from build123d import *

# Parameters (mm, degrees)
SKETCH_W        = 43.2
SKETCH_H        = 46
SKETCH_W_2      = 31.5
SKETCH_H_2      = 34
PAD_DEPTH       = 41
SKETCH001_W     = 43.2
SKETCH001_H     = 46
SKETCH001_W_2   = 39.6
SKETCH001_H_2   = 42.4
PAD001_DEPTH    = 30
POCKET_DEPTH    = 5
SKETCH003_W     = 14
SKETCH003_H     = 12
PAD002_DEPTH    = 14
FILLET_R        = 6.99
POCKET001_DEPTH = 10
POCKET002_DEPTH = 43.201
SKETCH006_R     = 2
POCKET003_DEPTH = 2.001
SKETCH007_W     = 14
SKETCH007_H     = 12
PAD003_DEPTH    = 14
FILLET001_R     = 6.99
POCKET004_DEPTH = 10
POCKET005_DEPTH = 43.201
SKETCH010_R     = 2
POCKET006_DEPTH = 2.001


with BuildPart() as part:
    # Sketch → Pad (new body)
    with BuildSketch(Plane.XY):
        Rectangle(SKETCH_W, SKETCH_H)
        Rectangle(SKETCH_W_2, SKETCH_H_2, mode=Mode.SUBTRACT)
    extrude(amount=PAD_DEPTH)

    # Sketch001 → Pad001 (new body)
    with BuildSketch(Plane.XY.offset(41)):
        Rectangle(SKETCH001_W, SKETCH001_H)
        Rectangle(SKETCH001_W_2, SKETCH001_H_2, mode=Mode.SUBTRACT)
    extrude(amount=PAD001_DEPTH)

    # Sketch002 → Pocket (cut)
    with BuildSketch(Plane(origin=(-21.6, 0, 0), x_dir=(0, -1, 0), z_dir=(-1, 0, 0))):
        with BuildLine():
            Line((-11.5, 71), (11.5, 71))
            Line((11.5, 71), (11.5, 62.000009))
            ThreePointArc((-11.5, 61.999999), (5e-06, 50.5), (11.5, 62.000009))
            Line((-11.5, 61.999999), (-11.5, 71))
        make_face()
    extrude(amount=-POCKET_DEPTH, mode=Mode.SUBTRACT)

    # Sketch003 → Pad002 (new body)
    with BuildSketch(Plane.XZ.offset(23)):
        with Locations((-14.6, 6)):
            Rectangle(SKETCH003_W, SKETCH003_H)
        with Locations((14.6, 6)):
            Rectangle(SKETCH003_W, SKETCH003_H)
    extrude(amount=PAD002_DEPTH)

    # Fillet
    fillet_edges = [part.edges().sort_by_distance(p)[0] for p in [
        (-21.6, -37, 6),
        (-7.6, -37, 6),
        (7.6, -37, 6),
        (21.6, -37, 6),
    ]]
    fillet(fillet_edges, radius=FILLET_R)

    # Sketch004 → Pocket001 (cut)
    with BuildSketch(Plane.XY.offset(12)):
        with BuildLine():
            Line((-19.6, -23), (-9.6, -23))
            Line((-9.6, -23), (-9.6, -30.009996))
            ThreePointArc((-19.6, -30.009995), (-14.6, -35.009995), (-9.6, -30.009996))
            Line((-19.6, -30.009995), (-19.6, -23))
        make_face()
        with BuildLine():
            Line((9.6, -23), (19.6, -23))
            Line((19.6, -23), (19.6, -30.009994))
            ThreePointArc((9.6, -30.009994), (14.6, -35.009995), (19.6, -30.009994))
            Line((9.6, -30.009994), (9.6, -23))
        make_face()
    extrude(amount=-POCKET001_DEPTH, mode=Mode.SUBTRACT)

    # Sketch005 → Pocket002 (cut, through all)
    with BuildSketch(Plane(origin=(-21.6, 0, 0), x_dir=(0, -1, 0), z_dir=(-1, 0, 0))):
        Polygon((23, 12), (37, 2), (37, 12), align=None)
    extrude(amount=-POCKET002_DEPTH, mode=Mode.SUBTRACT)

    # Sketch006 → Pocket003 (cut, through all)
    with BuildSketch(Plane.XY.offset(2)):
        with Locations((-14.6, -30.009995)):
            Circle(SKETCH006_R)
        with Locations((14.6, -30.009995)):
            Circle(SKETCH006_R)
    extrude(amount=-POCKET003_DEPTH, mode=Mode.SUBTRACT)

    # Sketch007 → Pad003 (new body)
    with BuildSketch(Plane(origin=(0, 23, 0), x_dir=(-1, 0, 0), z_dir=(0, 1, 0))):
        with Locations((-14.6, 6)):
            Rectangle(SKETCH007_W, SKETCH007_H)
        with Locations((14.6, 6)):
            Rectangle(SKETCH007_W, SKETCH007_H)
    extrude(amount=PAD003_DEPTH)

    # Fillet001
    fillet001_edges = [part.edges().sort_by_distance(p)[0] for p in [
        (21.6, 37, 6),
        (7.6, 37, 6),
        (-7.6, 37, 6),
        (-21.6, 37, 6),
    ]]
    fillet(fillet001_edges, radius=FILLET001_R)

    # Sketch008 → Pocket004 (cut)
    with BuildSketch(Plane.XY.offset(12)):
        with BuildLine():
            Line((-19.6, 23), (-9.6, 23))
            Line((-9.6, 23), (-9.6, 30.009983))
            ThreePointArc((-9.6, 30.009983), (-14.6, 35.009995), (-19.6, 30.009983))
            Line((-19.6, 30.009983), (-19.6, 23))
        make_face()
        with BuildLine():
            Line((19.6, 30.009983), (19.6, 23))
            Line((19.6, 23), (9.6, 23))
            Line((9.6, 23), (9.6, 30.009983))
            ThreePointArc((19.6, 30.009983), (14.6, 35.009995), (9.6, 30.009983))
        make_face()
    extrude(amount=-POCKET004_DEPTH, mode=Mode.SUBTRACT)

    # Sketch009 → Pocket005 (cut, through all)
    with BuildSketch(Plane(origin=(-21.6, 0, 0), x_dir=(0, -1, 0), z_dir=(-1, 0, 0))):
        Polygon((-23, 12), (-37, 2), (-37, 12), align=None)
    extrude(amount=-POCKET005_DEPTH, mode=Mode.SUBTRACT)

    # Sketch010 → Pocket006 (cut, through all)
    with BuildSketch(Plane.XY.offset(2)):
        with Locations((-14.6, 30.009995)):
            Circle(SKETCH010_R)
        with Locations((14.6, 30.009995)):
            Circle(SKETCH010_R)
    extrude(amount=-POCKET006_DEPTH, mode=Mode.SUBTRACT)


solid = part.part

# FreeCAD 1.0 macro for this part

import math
import FreeCAD as App
import Part
import Sketcher
Q = App.Units.Quantity


def edges_at(feature, points):
    """Names of the edges that pass closest to the given points."""
    edges = feature.Shape.Edges
    near = lambda p: min(range(len(edges)), key=lambda i: edges[i].distToShape(Part.Vertex(*p))[0])
    return sorted({f"Edge{near(p) + 1}" for p in points})


def add_polygon(sketch, points):
    """Adds a closed chain of lines whose ends are joined by coincident constraints."""
    first, n = sketch.GeometryCount, len(points)
    for a, b in zip(points, points[1:] + points[:1]):
        sketch.addGeometry(Part.LineSegment(App.Vector(*a, 0), App.Vector(*b, 0)), False)
    for i in range(n):
        sketch.addConstraint(Sketcher.Constraint("Coincident", first + i, 2, first + (i + 1) % n, 1))

doc = App.newDocument("Part")
body = doc.addObject("PartDesign::Body", "Body")

# Sketch on XY plane
sketch1 = body.newObject("Sketcher::SketchObject", "Sketch")
sketch1.AttachmentSupport = (doc.getObject("XY_Plane"), [""])
sketch1.MapMode = "FlatFace"
add_polygon(sketch1, [(-22, 23), (-22, -23), (22, -23), (22, 23)])  # lines 0-3
add_polygon(sketch1, [(16, -17), (-16, -17), (-16, 17), (16, 17)])  # lines 4-7
sketch1.addConstraint([
    Sketcher.Constraint("Vertical", 0),
    Sketcher.Constraint("Horizontal", 1),
    Sketcher.Constraint("Vertical", 2),
    Sketcher.Constraint("Horizontal", 3),
    Sketcher.Constraint("Horizontal", 4),
    Sketcher.Constraint("Vertical", 5),
    Sketcher.Constraint("Horizontal", 6),
    Sketcher.Constraint("Vertical", 7),
    Sketcher.Constraint("Symmetric", 0, 2, 2, 2, -1, 1),
    Sketcher.Constraint("Symmetric", 4, 2, 6, 2, -1, 1),
    Sketcher.Constraint("DistanceY", 0, 2, 0, 1, Q("46 mm")),
    Sketcher.Constraint("DistanceY", 5, 1, 5, 2, Q("34 mm")),
    Sketcher.Constraint("DistanceX", 1, 1, 1, 2, Q("43.2 mm")),
    Sketcher.Constraint("DistanceX", 4, 2, 4, 1, Q("31.5 mm")),
])
pad1 = body.newObject("PartDesign::Pad", "Pad")
pad1.Profile = sketch1
pad1.Length = 41

# Sketch on XY plane
sketch2 = body.newObject("Sketcher::SketchObject", "Sketch001")
sketch2.AttachmentSupport = (doc.getObject("XY_Plane"), [""])
sketch2.MapMode = "FlatFace"
sketch2.AttachmentOffset = App.Placement(App.Vector(0, 0, 41), App.Rotation())
add_polygon(sketch2, [(-22, 23), (-22, -23), (22, -23), (22, 23)])  # lines 0-3
add_polygon(sketch2, [(20, -21), (-20, -21), (-20, 21), (20, 21)])  # lines 4-7
sketch2.addConstraint([
    Sketcher.Constraint("Vertical", 0),
    Sketcher.Constraint("Horizontal", 1),
    Sketcher.Constraint("Vertical", 2),
    Sketcher.Constraint("Horizontal", 3),
    Sketcher.Constraint("Horizontal", 4),
    Sketcher.Constraint("Vertical", 5),
    Sketcher.Constraint("Horizontal", 6),
    Sketcher.Constraint("Vertical", 7),
    Sketcher.Constraint("Symmetric", 0, 2, 2, 2, -1, 1),
    Sketcher.Constraint("Symmetric", 4, 2, 6, 2, -1, 1),
    Sketcher.Constraint("DistanceY", 0, 2, 0, 1, Q("46 mm")),
    Sketcher.Constraint("DistanceX", 1, 1, 1, 2, Q("43.2 mm")),
    Sketcher.Constraint("DistanceX", 4, 2, 4, 1, Q("39.6 mm")),
    Sketcher.Constraint("DistanceY", 5, 1, 5, 2, Q("42.4 mm")),
])
pad2 = body.newObject("PartDesign::Pad", "Pad001")
pad2.Profile = sketch2
pad2.Length = 30

# Sketch on YZ plane
sketch3 = body.newObject("Sketcher::SketchObject", "Sketch002")
sketch3.AttachmentSupport = (doc.getObject("YZ_Plane"), [""])
sketch3.MapMode = "FlatFace"
sketch3.AttachmentOffset = App.Placement(App.Vector(0, 0, -21.6), App.Rotation())
sketch3.addGeometry([
    Part.LineSegment(App.Vector(-12, 71, 0), App.Vector(12, 71, 0)),
    Part.LineSegment(App.Vector(12, 71, 0), App.Vector(12, 62, 0)),
    Part.ArcOfCircle(Part.Circle(App.Vector(0, 62, 0), App.Vector(0, 0, 1), 12), math.radians(180), math.radians(360)),
    Part.LineSegment(App.Vector(-12, 62, 0), App.Vector(-12, 71, 0)),
], False)
sketch3.addConstraint([
    Sketcher.Constraint("Coincident", 0, 2, 1, 1),
    Sketcher.Constraint("Tangent", 1, 2, 2, 2),
    Sketcher.Constraint("Tangent", 2, 1, 3, 1),
    Sketcher.Constraint("Coincident", 3, 2, 0, 1),
    Sketcher.Constraint("Horizontal", 0),
    Sketcher.Constraint("Vertical", 1),
    Sketcher.Constraint("Vertical", 3),
    Sketcher.Constraint("PointOnObject", 2, 3, -2),
    Sketcher.Constraint("Radius", 2, Q("11.5 mm")),
    Sketcher.Constraint("DistanceY", 1, 2, 1, 1, Q("9.000001 mm")),
    Sketcher.Constraint("DistanceY", -1, 1, 2, 3, Q("62 mm")),
])
pocket1 = body.newObject("PartDesign::Pocket", "Pocket")
pocket1.Profile = sketch3
pocket1.Length = 5
pocket1.Reversed = True

# Sketch on XZ plane
sketch4 = body.newObject("Sketcher::SketchObject", "Sketch003")
sketch4.AttachmentSupport = (doc.getObject("XZ_Plane"), [""])
sketch4.MapMode = "FlatFace"
sketch4.AttachmentOffset = App.Placement(App.Vector(0, 0, 23), App.Rotation())
add_polygon(sketch4, [(-22, 12), (-22, 0), (-8, 0), (-8, 12)])  # lines 0-3
add_polygon(sketch4, [(8, 12), (8, 0), (22, 0), (22, 12)])  # lines 4-7
sketch4.addConstraint([
    Sketcher.Constraint("Vertical", 0),
    Sketcher.Constraint("Horizontal", 1),
    Sketcher.Constraint("Vertical", 2),
    Sketcher.Constraint("Horizontal", 3),
    Sketcher.Constraint("Vertical", 4),
    Sketcher.Constraint("Horizontal", 5),
    Sketcher.Constraint("Vertical", 6),
    Sketcher.Constraint("Horizontal", 7),
    Sketcher.Constraint("Symmetric", 1, 2, 4, 2, -1, 1),
    Sketcher.Constraint("Symmetric", 0, 2, 5, 2, -2),
    Sketcher.Constraint("Horizontal", 3, 2, 6, 2),
    Sketcher.Constraint("DistanceX", 1, 1, 1, 2, Q("14 mm")),
    Sketcher.Constraint("DistanceY", 0, 2, 0, 1, Q("12 mm")),
    Sketcher.Constraint("DistanceX", 0, 2, -1, 1, Q("21.6 mm")),
])
pad3 = body.newObject("PartDesign::Pad", "Pad002")
pad3.Profile = sketch4
pad3.Length = 14
doc.recompute()

fillet = body.newObject("PartDesign::Fillet", "Fillet")
fillet.Base = (pad3, edges_at(pad3, [
    (-21.6, -37, 6),
    (-7.6, -37, 6),
    (7.6, -37, 6),
    (21.6, -37, 6),
]))
fillet.Radius = 6.99

# Sketch on XY plane
sketch5 = body.newObject("Sketcher::SketchObject", "Sketch004")
sketch5.AttachmentSupport = (doc.getObject("XY_Plane"), [""])
sketch5.MapMode = "FlatFace"
sketch5.AttachmentOffset = App.Placement(App.Vector(0, 0, 12), App.Rotation())
sketch5.addGeometry([
    Part.LineSegment(App.Vector(-10, -23, 0), App.Vector(-20, -23, 0)),  # 0
    Part.LineSegment(App.Vector(-20, -23, 0), App.Vector(-20, -30, 0)),  # 1
    Part.ArcOfCircle(Part.Circle(App.Vector(-15, -30, 0), App.Vector(0, 0, 1), 5), math.radians(180), math.radians(360)),  # 2
    Part.LineSegment(App.Vector(-10, -30, 0), App.Vector(-10, -23, 0)),  # 3
    Part.LineSegment(App.Vector(20, -23, 0), App.Vector(10, -23, 0)),  # 4
    Part.LineSegment(App.Vector(10, -23, 0), App.Vector(10, -30, 0)),  # 5
    Part.ArcOfCircle(Part.Circle(App.Vector(15, -30, 0), App.Vector(0, 0, 1), 5), math.radians(180), math.radians(360)),  # 6
    Part.LineSegment(App.Vector(20, -30, 0), App.Vector(20, -23, 0)),  # 7
], False)
sketch5.addConstraint([
    Sketcher.Constraint("Coincident", 0, 2, 1, 1),
    Sketcher.Constraint("Tangent", 1, 2, 2, 1),
    Sketcher.Constraint("Tangent", 2, 2, 3, 1),
    Sketcher.Constraint("Coincident", 3, 2, 0, 1),
    Sketcher.Constraint("Coincident", 4, 2, 5, 1),
    Sketcher.Constraint("Tangent", 5, 2, 6, 1),
    Sketcher.Constraint("Tangent", 6, 2, 7, 1),
    Sketcher.Constraint("Coincident", 7, 2, 4, 1),
    Sketcher.Constraint("Horizontal", 0),
    Sketcher.Constraint("Vertical", 1),
    Sketcher.Constraint("Vertical", 3),
    Sketcher.Constraint("Horizontal", 4),
    Sketcher.Constraint("Vertical", 5),
    Sketcher.Constraint("Vertical", 7),
    Sketcher.Constraint("Equal", 2, 6),
    Sketcher.Constraint("Symmetric", 2, 3, 6, 3, -2),
    Sketcher.Constraint("Horizontal", 3, 2, 4, 2),
    Sketcher.Constraint("Radius", 2, Q("5 mm")),
    Sketcher.Constraint("DistanceY", 0, 2, -1, 1, Q("23 mm")),
    Sketcher.Constraint("DistanceX", 2, 3, -1, 1, Q("14.6 mm")),
    Sketcher.Constraint("DistanceY", 1, 2, 1, 1, Q("7.009995 mm")),
])
pocket2 = body.newObject("PartDesign::Pocket", "Pocket001")
pocket2.Profile = sketch5
pocket2.Length = 10

# Sketch on YZ plane
sketch6 = body.newObject("Sketcher::SketchObject", "Sketch005")
sketch6.AttachmentSupport = (doc.getObject("YZ_Plane"), [""])
sketch6.MapMode = "FlatFace"
sketch6.AttachmentOffset = App.Placement(App.Vector(0, 0, -21.6), App.Rotation())
add_polygon(sketch6, [(-23, 12), (-37, 2), (-37, 12)])  # lines 0-2
sketch6.addConstraint([
    Sketcher.Constraint("Vertical", 1),
    Sketcher.Constraint("Horizontal", 2),
    Sketcher.Constraint("DistanceX", 2, 1, 2, 2, Q("14 mm")),
    Sketcher.Constraint("DistanceY", 1, 1, 1, 2, Q("10 mm")),
    Sketcher.Constraint("DistanceX", 0, 2, -1, 1, Q("37 mm")),
    Sketcher.Constraint("DistanceY", -1, 1, 0, 2, Q("2 mm")),
])
pocket3 = body.newObject("PartDesign::Pocket", "Pocket002")
pocket3.Profile = sketch6
pocket3.Type = "ThroughAll"
pocket3.Reversed = True

# Sketch on XY plane
sketch7 = body.newObject("Sketcher::SketchObject", "Sketch006")
sketch7.AttachmentSupport = (doc.getObject("XY_Plane"), [""])
sketch7.MapMode = "FlatFace"
sketch7.AttachmentOffset = App.Placement(App.Vector(0, 0, 2), App.Rotation())
sketch7.addGeometry([
    Part.Circle(App.Vector(-14.6, -30, 0), App.Vector(0, 0, 1), 2),
    Part.Circle(App.Vector(14.6, -30, 0), App.Vector(0, 0, 1), 2),
], False)
sketch7.addConstraint([
    Sketcher.Constraint("Equal", 0, 1),
    Sketcher.Constraint("Symmetric", 0, 3, 1, 3, -2),
    Sketcher.Constraint("Diameter", 0, Q("4 mm")),
    Sketcher.Constraint("DistanceX", 0, 3, -1, 1, Q("14.6 mm")),
    Sketcher.Constraint("DistanceY", 0, 3, -1, 1, Q("30.009995 mm")),
])
pocket4 = body.newObject("PartDesign::Pocket", "Pocket003")
pocket4.Profile = sketch7
pocket4.Type = "ThroughAll"

# Sketch on XZ plane
sketch8 = body.newObject("Sketcher::SketchObject", "Sketch007")
sketch8.AttachmentSupport = (doc.getObject("XZ_Plane"), [""])
sketch8.MapMode = "FlatFace"
sketch8.AttachmentOffset = App.Placement(App.Vector(0, 0, -23), App.Rotation())
add_polygon(sketch8, [(22, 12), (22, 0), (8, 0), (8, 12)])  # lines 0-3
add_polygon(sketch8, [(-8, 12), (-8, 0), (-22, 0), (-22, 12)])  # lines 4-7
sketch8.addConstraint([
    Sketcher.Constraint("Vertical", 0),
    Sketcher.Constraint("Horizontal", 1),
    Sketcher.Constraint("Vertical", 2),
    Sketcher.Constraint("Horizontal", 3),
    Sketcher.Constraint("Vertical", 4),
    Sketcher.Constraint("Horizontal", 5),
    Sketcher.Constraint("Vertical", 6),
    Sketcher.Constraint("Horizontal", 7),
    Sketcher.Constraint("Symmetric", 1, 2, 4, 2, -1, 1),
    Sketcher.Constraint("Symmetric", 0, 2, 5, 2, -2),
    Sketcher.Constraint("Horizontal", 3, 2, 6, 2),
    Sketcher.Constraint("DistanceX", 1, 2, 1, 1, Q("14 mm")),
    Sketcher.Constraint("DistanceY", 0, 2, 0, 1, Q("12 mm")),
    Sketcher.Constraint("DistanceX", -1, 1, 0, 2, Q("21.6 mm")),
])
pad4 = body.newObject("PartDesign::Pad", "Pad003")
pad4.Profile = sketch8
pad4.Length = 14
pad4.Reversed = True
doc.recompute()

fillet2 = body.newObject("PartDesign::Fillet", "Fillet001")
fillet2.Base = (pad4, edges_at(pad4, [
    (21.6, 37, 6),
    (7.6, 37, 6),
    (-7.6, 37, 6),
    (-21.6, 37, 6),
]))
fillet2.Radius = 6.99

# Sketch on XY plane
sketch9 = body.newObject("Sketcher::SketchObject", "Sketch008")
sketch9.AttachmentSupport = (doc.getObject("XY_Plane"), [""])
sketch9.MapMode = "FlatFace"
sketch9.AttachmentOffset = App.Placement(App.Vector(0, 0, 12), App.Rotation())
sketch9.addGeometry([
    Part.LineSegment(App.Vector(-20, 23, 0), App.Vector(-10, 23, 0)),  # 0
    Part.LineSegment(App.Vector(-10, 23, 0), App.Vector(-10, 30, 0)),  # 1
    Part.ArcOfCircle(Part.Circle(App.Vector(-15, 30, 0), App.Vector(0, 0, 1), 5), math.radians(0), math.radians(180)),  # 2
    Part.LineSegment(App.Vector(-20, 30, 0), App.Vector(-20, 23, 0)),  # 3
    Part.LineSegment(App.Vector(20, 23, 0), App.Vector(20, 30, 0)),  # 4
    Part.ArcOfCircle(Part.Circle(App.Vector(15, 30, 0), App.Vector(0, 0, 1), 5), math.radians(0), math.radians(180)),  # 5
    Part.LineSegment(App.Vector(10, 30, 0), App.Vector(10, 23, 0)),  # 6
    Part.LineSegment(App.Vector(10, 23, 0), App.Vector(20, 23, 0)),  # 7
], False)
sketch9.addConstraint([
    Sketcher.Constraint("Coincident", 0, 2, 1, 1),
    Sketcher.Constraint("Coincident", 1, 2, 2, 1),
    Sketcher.Constraint("Coincident", 2, 2, 3, 1),
    Sketcher.Constraint("Coincident", 3, 2, 0, 1),
    Sketcher.Constraint("Coincident", 4, 2, 5, 1),
    Sketcher.Constraint("Coincident", 5, 2, 6, 1),
    Sketcher.Constraint("Coincident", 6, 2, 7, 1),
    Sketcher.Constraint("Coincident", 7, 2, 4, 1),
    Sketcher.Constraint("Horizontal", 0),
    Sketcher.Constraint("Vertical", 1),
    Sketcher.Constraint("Vertical", 3),
    Sketcher.Constraint("Vertical", 4),
    Sketcher.Constraint("Vertical", 6),
    Sketcher.Constraint("Horizontal", 7),
    Sketcher.Constraint("Equal", 2, 5),
    Sketcher.Constraint("Symmetric", 2, 3, 5, 3, -2),
    Sketcher.Constraint("Horizontal", 1, 2, 2, 2),
    Sketcher.Constraint("Horizontal", 2, 2, 4, 2),
    Sketcher.Constraint("Horizontal", 4, 2, 5, 2),
    Sketcher.Constraint("Horizontal", 3, 2, 6, 2),
    Sketcher.Constraint("Radius", 2, Q("5 mm")),
    Sketcher.Constraint("DistanceY", -1, 1, 0, 2, Q("23 mm")),
    Sketcher.Constraint("DistanceX", 2, 3, -1, 1, Q("14.6 mm")),
    Sketcher.Constraint("DistanceY", 1, 1, 1, 2, Q("7.009983 mm")),
    Sketcher.Constraint("DistanceY", -1, 1, 2, 3, Q("30.009995 mm")),
])
pocket5 = body.newObject("PartDesign::Pocket", "Pocket004")
pocket5.Profile = sketch9
pocket5.Length = 10

# Sketch on YZ plane
sketch10 = body.newObject("Sketcher::SketchObject", "Sketch009")
sketch10.AttachmentSupport = (doc.getObject("YZ_Plane"), [""])
sketch10.MapMode = "FlatFace"
sketch10.AttachmentOffset = App.Placement(App.Vector(0, 0, -21.6), App.Rotation())
add_polygon(sketch10, [(37, 2), (23, 12), (37, 12)])  # lines 0-2
sketch10.addConstraint([
    Sketcher.Constraint("Horizontal", 1),
    Sketcher.Constraint("Vertical", 2),
    Sketcher.Constraint("DistanceX", 1, 1, 1, 2, Q("14 mm")),
    Sketcher.Constraint("DistanceY", 2, 2, 2, 1, Q("10 mm")),
    Sketcher.Constraint("DistanceX", -1, 1, 0, 2, Q("23 mm")),
    Sketcher.Constraint("DistanceY", -1, 1, 0, 2, Q("12 mm")),
])
pocket6 = body.newObject("PartDesign::Pocket", "Pocket005")
pocket6.Profile = sketch10
pocket6.Type = "ThroughAll"
pocket6.Reversed = True

# Sketch on XY plane
sketch11 = body.newObject("Sketcher::SketchObject", "Sketch010")
sketch11.AttachmentSupport = (doc.getObject("XY_Plane"), [""])
sketch11.MapMode = "FlatFace"
sketch11.AttachmentOffset = App.Placement(App.Vector(0, 0, 2), App.Rotation())
sketch11.addGeometry([
    Part.Circle(App.Vector(-14.6, 30, 0), App.Vector(0, 0, 1), 2),
    Part.Circle(App.Vector(14.6, 30, 0), App.Vector(0, 0, 1), 2),
], False)
sketch11.addConstraint([
    Sketcher.Constraint("Equal", 0, 1),
    Sketcher.Constraint("Symmetric", 0, 3, 1, 3, -2),
    Sketcher.Constraint("Diameter", 0, Q("4 mm")),
    Sketcher.Constraint("DistanceX", 0, 3, -1, 1, Q("14.6 mm")),
    Sketcher.Constraint("DistanceY", -1, 1, 0, 3, Q("30.009995 mm")),
])
pocket7 = body.newObject("PartDesign::Pocket", "Pocket006")
pocket7.Profile = sketch11
pocket7.Type = "ThroughAll"

doc.recompute()
